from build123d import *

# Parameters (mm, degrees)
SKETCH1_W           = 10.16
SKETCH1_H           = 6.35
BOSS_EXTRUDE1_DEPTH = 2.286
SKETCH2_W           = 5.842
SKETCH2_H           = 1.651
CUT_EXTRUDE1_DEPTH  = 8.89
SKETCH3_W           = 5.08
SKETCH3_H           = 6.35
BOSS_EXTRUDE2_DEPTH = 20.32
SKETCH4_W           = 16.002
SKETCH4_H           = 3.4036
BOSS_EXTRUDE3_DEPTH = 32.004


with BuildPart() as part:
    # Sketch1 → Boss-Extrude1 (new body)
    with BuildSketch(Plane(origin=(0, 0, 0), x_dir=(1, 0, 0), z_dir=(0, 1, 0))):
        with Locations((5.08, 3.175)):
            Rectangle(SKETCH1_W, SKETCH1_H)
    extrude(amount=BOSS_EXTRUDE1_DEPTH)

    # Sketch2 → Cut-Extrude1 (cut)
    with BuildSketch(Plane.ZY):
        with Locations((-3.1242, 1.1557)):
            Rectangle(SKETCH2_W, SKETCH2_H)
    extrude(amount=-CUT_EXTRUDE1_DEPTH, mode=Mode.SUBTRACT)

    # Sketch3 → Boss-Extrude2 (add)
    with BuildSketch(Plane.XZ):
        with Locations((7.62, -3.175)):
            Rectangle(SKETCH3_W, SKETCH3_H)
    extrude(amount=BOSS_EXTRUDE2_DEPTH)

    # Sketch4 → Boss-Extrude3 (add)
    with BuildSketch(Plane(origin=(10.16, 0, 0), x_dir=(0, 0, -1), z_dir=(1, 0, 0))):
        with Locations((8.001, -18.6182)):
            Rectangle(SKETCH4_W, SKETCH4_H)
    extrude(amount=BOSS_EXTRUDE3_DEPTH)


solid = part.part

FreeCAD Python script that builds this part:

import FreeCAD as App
import Part
import Sketcher

V = App.Vector
Q = App.Units.Quantity


def add_polygon(sketch, points):
    """Adds a closed chain of lines whose ends are joined by coincident constraints."""
    first, n = sketch.GeometryCount, len(points)
    for a, b in zip(points, points[1:] + points[:1]):
        sketch.addGeometry(Part.LineSegment(App.Vector(*a, 0), App.Vector(*b, 0)), False)
    for i in range(n):
        sketch.addConstraint(Sketcher.Constraint("Coincident", first + i, 2, first + (i + 1) % n, 1))

doc = App.newDocument("Part")
body = doc.addObject("PartDesign::Body", "Body")

sketch1 = body.newObject("Sketcher::SketchObject", "Sketch")
sketch1.AttachmentSupport = (doc.getObject("XZ_Plane"), [""])
sketch1.MapMode = "FlatFace"
add_polygon(sketch1, [(0, -6.35), (0, 0), (10.16, 0), (10.16, -6.35)])
sketch1.addConstraint([
    Sketcher.Constraint("Vertical", 0),
    Sketcher.Constraint("Horizontal", 1),
    Sketcher.Constraint("Vertical", 2),
    Sketcher.Constraint("Horizontal", 3),
    Sketcher.Constraint("Coincident", 0, 2, -1, 1),
    Sketcher.Constraint("DistanceX", 1, 1, 1, 2, Q("0.4 in")),
    Sketcher.Constraint("DistanceY", 0, 1, 0, 2, Q("0.25 in")),
])
pad1 = body.newObject("PartDesign::Pad", "Pad")
pad1.Profile = sketch1
pad1.Length = Q("0.09 in")
pad1.Reversed = True

sketch2 = body.newObject("Sketcher::SketchObject", "Sketch001")
sketch2.AttachmentSupport = (doc.getObject("YZ_Plane"), [""])
sketch2.MapMode = "FlatFace"
add_polygon(sketch2, [(1.9812, -6.0452), (0.3302, -6.0452), (0.3302, -0.2032), (1.9812, -0.2032)])
sketch2.addConstraint([
    Sketcher.Constraint("Horizontal", 0),
    Sketcher.Constraint("Vertical", 1),
    Sketcher.Constraint("Horizontal", 2),
    Sketcher.Constraint("Vertical", 3),
    Sketcher.Constraint("DistanceY", 1, 1, 1, 2, Q("0.23 in")),
    Sketcher.Constraint("DistanceX", 0, 2, 0, 1, Q("0.065 in")),
    Sketcher.Constraint("DistanceX", -1, 1, 0, 2, Q("0.013 in")),
    Sketcher.Constraint("DistanceY", 0, 2, -1, 1, Q("0.238 in")),
])
pocket1 = body.newObject("PartDesign::Pocket", "Pocket")
pocket1.Profile = sketch2
pocket1.Length = Q("0.35 in")
pocket1.Reversed = True

sketch3 = body.newObject("Sketcher::SketchObject", "Sketch002")
sketch3.AttachmentSupport = (doc.getObject("XZ_Plane"), [""])
sketch3.MapMode = "FlatFace"
add_polygon(sketch3, [(5.08, 0), (5.08, -6.35), (10.16, -6.35), (10.16, 0)])
sketch3.addConstraint([
    Sketcher.Constraint("Vertical", 0),
    Sketcher.Constraint("Horizontal", 1),
    Sketcher.Constraint("Vertical", 2),
    Sketcher.Constraint("Horizontal", 3),
    Sketcher.Constraint("PointOnObject", 2, 2, -1),
    Sketcher.Constraint("DistanceX", 1, 1, 1, 2, Q("0.2 in")),
    Sketcher.Constraint("DistanceY", 0, 2, 0, 1, Q("0.25 in")),
    Sketcher.Constraint("DistanceX", -1, 1, 0, 2, Q("0.2 in")),
])
pad2 = body.newObject("PartDesign::Pad", "Pad001")
pad2.Profile = sketch3
pad2.Length = Q("0.8 in")

sketch4 = body.newObject("Sketcher::SketchObject", "Sketch003")
sketch4.AttachmentSupport = (doc.getObject("YZ_Plane"), [""])
sketch4.MapMode = "FlatFace"
sketch4.AttachmentOffset = App.Placement(V(0, 0, 0.4 * 25.4), App.Rotation())
add_polygon(sketch4, [(-16.9164, 0), (-20.32, 0), (-20.32, -16.002), (-16.9164, -16.002)])
sketch4.addConstraint([
    Sketcher.Constraint("Horizontal", 0),
    Sketcher.Constraint("Vertical", 1),
    Sketcher.Constraint("Horizontal", 2),
    Sketcher.Constraint("Vertical", 3),
    Sketcher.Constraint("PointOnObject", 0, 2, -1),
    Sketcher.Constraint("DistanceY", 1, 2, 1, 1, Q("0.63 in")),
    Sketcher.Constraint("DistanceX", 0, 2, -1, 1, Q("0.8 in")),
    Sketcher.Constraint("DistanceX", 0, 2, 0, 1, Q("0.134 in")),
])
pad3 = body.newObject("PartDesign::Pad", "Pad002")
pad3.Profile = sketch4
pad3.Length = Q("1.26 in")

doc.recompute()
